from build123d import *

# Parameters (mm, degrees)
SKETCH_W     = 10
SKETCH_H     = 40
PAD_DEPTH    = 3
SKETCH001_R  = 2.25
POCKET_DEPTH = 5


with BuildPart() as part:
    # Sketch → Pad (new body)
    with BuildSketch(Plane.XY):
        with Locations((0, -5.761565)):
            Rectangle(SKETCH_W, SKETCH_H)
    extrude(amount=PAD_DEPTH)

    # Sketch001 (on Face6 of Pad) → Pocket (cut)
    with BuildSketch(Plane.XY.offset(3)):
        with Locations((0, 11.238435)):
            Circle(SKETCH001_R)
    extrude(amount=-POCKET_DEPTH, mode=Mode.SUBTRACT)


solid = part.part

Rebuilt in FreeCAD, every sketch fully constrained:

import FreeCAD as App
import Part
import Sketcher

V = App.Vector
Q = App.Units.Quantity

doc = App.newDocument("Part")
body = doc.addObject("PartDesign::Body", "Body")

sketch1 = body.newObject("Sketcher::SketchObject", "Sketch")
sketch1.AttachmentSupport = (doc.getObject("XY_Plane"), [""])
sketch1.MapMode = "FlatFace"
sketch1.addGeometry([
    Part.LineSegment(V(-5, 14, 0), V(-5, -26, 0)),
    Part.LineSegment(V(-5, -26, 0), V(5, -26, 0)),
    Part.LineSegment(V(5, -26, 0), V(5, 14, 0)),
    Part.LineSegment(V(5, 14, 0), V(-5, 14, 0)),
], False)
sketch1.addConstraint([
    Sketcher.Constraint("Coincident", 0, 2, 1, 1),
    Sketcher.Constraint("Coincident", 1, 2, 2, 1),
    Sketcher.Constraint("Coincident", 2, 2, 3, 1),
    Sketcher.Constraint("Coincident", 3, 2, 0, 1),
    Sketcher.Constraint("Vertical", 0),
    Sketcher.Constraint("Horizontal", 1),
    Sketcher.Constraint("Vertical", 2),
    Sketcher.Constraint("Horizontal", 3),
    Sketcher.Constraint("DistanceX", 1, 1, 1, 2, Q("10 mm")),
    Sketcher.Constraint("DistanceY", 0, 2, 0, 1, Q("40 mm")),
    Sketcher.Constraint("DistanceX", 0, 2, -1, 1, Q("5 mm")),
    Sketcher.Constraint("DistanceY", 0, 2, -1, 1, Q("25.761565 mm")),
])
pad1 = body.newObject("PartDesign::Pad", "Pad")
pad1.Profile = sketch1
pad1.Length = 3

sketch2 = body.newObject("Sketcher::SketchObject", "Sketch001")
sketch2.AttachmentSupport = (doc.getObject("XY_Plane"), [""])
sketch2.MapMode = "FlatFace"
sketch2.AttachmentOffset = App.Placement(V(0, 0, 3), App.Rotation())
sketch2.addGeometry(Part.Circle(V(0, 11.2, 0), V(0, 0, 1), 2.2), False)
sketch2.addConstraint([
    Sketcher.Constraint("PointOnObject", 0, 3, -2),
    Sketcher.Constraint("Diameter", 0, Q("4.5 mm")),
    Sketcher.Constraint("DistanceY", -1, 1, 0, 3, Q("11.238435 mm")),
])
pocket1 = body.newObject("PartDesign::Pocket", "Pocket")
pocket1.Profile = sketch2
pocket1.Length = 5

doc.recompute()
